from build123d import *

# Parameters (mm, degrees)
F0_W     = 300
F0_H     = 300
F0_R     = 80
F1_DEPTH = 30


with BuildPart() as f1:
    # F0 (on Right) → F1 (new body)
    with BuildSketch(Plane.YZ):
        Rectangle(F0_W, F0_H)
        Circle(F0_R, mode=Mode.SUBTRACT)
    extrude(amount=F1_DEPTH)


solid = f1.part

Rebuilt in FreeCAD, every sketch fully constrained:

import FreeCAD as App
import Part
import Sketcher

V = App.Vector


def add_polygon(sketch, points):
    """Adds a closed chain of lines whose ends are joined by coincident constraints."""
    first, n = sketch.GeometryCount, len(points)
    for a, b in zip(points, points[1:] + points[:1]):
        sketch.addGeometry(Part.LineSegment(App.Vector(*a, 0), App.Vector(*b, 0)), False)
    for i in range(n):
        sketch.addConstraint(Sketcher.Constraint("Coincident", first + i, 2, first + (i + 1) % n, 1))

doc = App.newDocument("Part")
body = doc.addObject("PartDesign::Body", "Body")

sketch1 = body.newObject("Sketcher::SketchObject", "Sketch")
sketch1.AttachmentSupport = (doc.getObject("YZ_Plane"), [""])
sketch1.MapMode = "FlatFace"
add_polygon(sketch1, [(-150, 150), (-150, -150), (150, -150), (150, 150)])
sketch1.addGeometry(Part.Circle(V(0, 0, 0), V(0, 0, 1), 80), False)
sketch1.addConstraint([
    Sketcher.Constraint("Vertical", 0),
    Sketcher.Constraint("Horizontal", 1),
    Sketcher.Constraint("Vertical", 2),
    Sketcher.Constraint("Horizontal", 3),
    Sketcher.Constraint("Coincident", 4, 3, -1, 1),
    Sketcher.Constraint("Symmetric", 0, 2, 2, 2, -1, 1),
    Sketcher.Constraint("Equal", 3, 0),
    Sketcher.Constraint("Diameter", 4, 160.0),
    Sketcher.Constraint("DistanceX", 1, 1, 1, 2, 300.0),
])
pad1 = body.newObject("PartDesign::Pad", "Pad")
pad1.Profile = sketch1
pad1.Length = 30

doc.recompute()
